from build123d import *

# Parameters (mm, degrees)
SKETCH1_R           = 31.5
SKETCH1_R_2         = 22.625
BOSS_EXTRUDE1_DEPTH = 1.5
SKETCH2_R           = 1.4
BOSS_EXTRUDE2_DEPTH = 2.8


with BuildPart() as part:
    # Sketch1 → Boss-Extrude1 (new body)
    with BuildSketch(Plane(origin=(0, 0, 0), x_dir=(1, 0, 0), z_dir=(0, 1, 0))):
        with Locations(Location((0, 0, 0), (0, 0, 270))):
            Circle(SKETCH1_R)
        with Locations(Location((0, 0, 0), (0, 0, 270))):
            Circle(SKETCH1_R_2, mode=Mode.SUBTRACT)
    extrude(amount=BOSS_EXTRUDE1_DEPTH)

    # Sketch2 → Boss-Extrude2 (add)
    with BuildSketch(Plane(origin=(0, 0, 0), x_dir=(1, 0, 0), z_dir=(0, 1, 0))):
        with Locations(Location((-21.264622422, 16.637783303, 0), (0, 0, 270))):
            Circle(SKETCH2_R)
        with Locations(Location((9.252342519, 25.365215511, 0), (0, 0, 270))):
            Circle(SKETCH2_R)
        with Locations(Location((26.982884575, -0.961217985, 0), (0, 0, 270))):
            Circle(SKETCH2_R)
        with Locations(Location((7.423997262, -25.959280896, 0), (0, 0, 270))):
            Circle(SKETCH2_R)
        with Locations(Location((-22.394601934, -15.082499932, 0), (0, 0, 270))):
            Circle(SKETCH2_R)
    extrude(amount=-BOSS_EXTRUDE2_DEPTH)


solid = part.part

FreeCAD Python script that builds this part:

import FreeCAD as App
import Part
import Sketcher

V = App.Vector

doc = App.newDocument("Part")
body = doc.addObject("PartDesign::Body", "Body")

# Sketch on XZ plane
sketch1 = doc.addObject("Sketcher::SketchObject", "Sketch")
body.addObject(sketch1)
sketch1.AttachmentSupport = (doc.XZ_Plane, [""])
sketch1.MapMode = "FlatFace"
sketch1.addGeometry(Part.Circle(V(0, 0, 0), V(0, 0, 1), 32), False)
sketch1.addGeometry(Part.Circle(V(0, 0, 0), V(0, 0, 1), 23), False)
sketch1.addConstraint(Sketcher.Constraint("Coincident", 0, 3, -1, 1))
sketch1.addConstraint(Sketcher.Constraint("Coincident", 1, 3, -1, 1))
sketch1.addConstraint(Sketcher.Constraint("Diameter", 0, 63.0))
sketch1.addConstraint(Sketcher.Constraint("Diameter", 1, 45.25))
pad1 = doc.addObject("PartDesign::Pad", "Pad")
body.addObject(pad1)
pad1.Profile = sketch1
pad1.Length = 1.5
pad1.Reversed = True

# Sketch on XZ plane
sketch2 = doc.addObject("Sketcher::SketchObject", "Sketch001")
body.addObject(sketch2)
sketch2.AttachmentSupport = (doc.XZ_Plane, [""])
sketch2.MapMode = "FlatFace"
sketch2.addGeometry(Part.Circle(V(-21.3, -16.6, 0), V(0, 0, 1), 1.4), False)
sketch2.addGeometry(Part.Circle(V(9.3, -25.4, 0), V(0, 0, 1), 1.4), False)
sketch2.addGeometry(Part.Circle(V(27, 1, 0), V(0, 0, 1), 1.4), False)
sketch2.addGeometry(Part.Circle(V(7.4, 26, 0), V(0, 0, 1), 1.4), False)
sketch2.addGeometry(Part.Circle(V(-22.4, 15.1, 0), V(0, 0, 1), 1.4), False)
sketch2.addConstraint(Sketcher.Constraint("Equal", 0, 1))
sketch2.addConstraint(Sketcher.Constraint("Equal", 1, 2))
sketch2.addConstraint(Sketcher.Constraint("Equal", 2, 3))
sketch2.addConstraint(Sketcher.Constraint("Equal", 3, 4))
sketch2.addConstraint(Sketcher.Constraint("Diameter", 0, 2.8))
sketch2.addConstraint(Sketcher.Constraint("DistanceY", 0, 3, 2, 3, 17.599001))
sketch2.addConstraint(Sketcher.Constraint("DistanceX", 4, 3, -1, 1, 22.394602))
sketch2.addConstraint(Sketcher.Constraint("DistanceY", -1, 1, 4, 3, 15.0825))
sketch2.addConstraint(Sketcher.Constraint("DistanceX", 4, 3, 3, 3, 29.818599))
sketch2.addConstraint(Sketcher.Constraint("DistanceY", -1, 1, 3, 3, 25.959281))
sketch2.addConstraint(Sketcher.Constraint("DistanceX", 0, 3, 3, 3, 28.68862))
sketch2.addConstraint(Sketcher.Constraint("DistanceY", 2, 3, 4, 3, 14.121282))
sketch2.addConstraint(Sketcher.Constraint("DistanceX", -1, 1, 1, 3, 9.252343))
sketch2.addConstraint(Sketcher.Constraint("DistanceY", 1, 3, -1, 1, 25.365216))
sketch2.addConstraint(Sketcher.Constraint("DistanceX", -1, 1, 2, 3, 26.982885))
pad2 = doc.addObject("PartDesign::Pad", "Pad001")
body.addObject(pad2)
pad2.Profile = sketch2
pad2.Length = 2.8

doc.recompute()
